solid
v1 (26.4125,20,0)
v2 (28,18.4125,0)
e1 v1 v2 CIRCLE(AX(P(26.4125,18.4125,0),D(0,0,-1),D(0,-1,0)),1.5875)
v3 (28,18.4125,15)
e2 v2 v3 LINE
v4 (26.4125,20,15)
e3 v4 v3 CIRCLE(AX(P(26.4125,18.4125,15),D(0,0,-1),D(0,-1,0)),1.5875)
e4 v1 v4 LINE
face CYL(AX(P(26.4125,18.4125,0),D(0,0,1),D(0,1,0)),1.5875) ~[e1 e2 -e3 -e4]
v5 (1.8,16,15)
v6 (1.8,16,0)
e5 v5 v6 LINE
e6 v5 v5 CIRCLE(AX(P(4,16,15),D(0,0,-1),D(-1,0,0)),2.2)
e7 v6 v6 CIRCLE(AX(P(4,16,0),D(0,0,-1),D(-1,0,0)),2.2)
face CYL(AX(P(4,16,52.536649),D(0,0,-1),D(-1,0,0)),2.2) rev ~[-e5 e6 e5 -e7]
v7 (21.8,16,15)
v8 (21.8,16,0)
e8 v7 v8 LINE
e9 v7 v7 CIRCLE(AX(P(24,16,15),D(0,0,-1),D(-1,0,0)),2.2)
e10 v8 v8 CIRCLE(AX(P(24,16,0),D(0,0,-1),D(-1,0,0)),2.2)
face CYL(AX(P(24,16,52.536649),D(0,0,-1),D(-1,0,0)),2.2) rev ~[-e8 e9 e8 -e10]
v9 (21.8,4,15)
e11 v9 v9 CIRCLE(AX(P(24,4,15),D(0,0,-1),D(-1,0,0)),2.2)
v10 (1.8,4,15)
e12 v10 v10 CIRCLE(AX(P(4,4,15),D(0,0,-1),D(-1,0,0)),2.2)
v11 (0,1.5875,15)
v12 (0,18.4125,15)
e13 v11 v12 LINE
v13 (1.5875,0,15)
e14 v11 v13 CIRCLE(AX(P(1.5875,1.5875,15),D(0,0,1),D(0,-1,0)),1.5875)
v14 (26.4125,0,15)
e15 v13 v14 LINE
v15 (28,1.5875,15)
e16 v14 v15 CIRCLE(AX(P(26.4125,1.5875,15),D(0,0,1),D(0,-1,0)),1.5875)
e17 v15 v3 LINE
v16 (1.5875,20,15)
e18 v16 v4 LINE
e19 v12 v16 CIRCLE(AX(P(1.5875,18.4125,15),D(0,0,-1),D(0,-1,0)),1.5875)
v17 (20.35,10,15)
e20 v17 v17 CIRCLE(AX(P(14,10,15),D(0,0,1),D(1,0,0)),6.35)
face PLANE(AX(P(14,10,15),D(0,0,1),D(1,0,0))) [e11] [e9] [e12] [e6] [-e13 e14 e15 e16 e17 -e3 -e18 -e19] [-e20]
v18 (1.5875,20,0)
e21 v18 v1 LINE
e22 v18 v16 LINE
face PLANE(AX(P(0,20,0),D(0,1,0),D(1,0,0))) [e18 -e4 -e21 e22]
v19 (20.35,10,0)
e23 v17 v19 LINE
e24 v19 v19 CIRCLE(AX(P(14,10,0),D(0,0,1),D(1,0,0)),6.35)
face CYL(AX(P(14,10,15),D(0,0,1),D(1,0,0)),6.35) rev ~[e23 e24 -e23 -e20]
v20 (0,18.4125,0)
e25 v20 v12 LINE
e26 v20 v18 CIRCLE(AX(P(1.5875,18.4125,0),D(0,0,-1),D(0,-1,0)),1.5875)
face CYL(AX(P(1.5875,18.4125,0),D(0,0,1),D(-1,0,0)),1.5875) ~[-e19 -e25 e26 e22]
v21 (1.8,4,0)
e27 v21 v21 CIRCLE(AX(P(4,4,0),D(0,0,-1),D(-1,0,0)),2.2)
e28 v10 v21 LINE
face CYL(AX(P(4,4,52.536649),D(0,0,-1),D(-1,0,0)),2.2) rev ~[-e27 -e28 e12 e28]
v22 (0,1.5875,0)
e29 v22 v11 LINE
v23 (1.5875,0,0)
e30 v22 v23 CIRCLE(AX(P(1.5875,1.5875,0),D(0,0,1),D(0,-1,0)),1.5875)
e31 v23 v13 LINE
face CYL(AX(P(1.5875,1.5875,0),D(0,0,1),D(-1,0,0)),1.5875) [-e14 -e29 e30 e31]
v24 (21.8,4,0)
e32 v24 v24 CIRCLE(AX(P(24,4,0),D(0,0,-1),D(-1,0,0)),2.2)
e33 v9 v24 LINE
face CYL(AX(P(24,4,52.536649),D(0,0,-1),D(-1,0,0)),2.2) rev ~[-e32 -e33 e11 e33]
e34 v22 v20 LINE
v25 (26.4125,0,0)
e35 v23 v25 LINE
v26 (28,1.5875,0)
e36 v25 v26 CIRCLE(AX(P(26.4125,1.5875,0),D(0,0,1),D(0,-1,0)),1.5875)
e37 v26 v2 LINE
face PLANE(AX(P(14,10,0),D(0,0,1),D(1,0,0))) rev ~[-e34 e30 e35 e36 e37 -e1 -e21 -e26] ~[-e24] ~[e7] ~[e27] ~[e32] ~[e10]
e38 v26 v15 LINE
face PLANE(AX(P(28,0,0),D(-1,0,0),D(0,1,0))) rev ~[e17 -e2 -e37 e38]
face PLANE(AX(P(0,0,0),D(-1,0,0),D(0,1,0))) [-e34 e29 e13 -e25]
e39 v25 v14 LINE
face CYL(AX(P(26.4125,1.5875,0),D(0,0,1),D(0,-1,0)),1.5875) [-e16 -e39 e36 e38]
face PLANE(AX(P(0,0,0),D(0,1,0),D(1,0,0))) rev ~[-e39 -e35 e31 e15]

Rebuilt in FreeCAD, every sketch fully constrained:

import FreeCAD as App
import Part
import Sketcher

V = App.Vector


def edges_at(feature, points):
    """Names of the edges that pass closest to the given points."""
    edges = feature.Shape.Edges
    near = lambda p: min(range(len(edges)), key=lambda i: edges[i].distToShape(Part.Vertex(*p))[0])
    return sorted({f"Edge{near(p) + 1}" for p in points})

doc = App.newDocument("Part")
body = doc.addObject("PartDesign::Body", "Body")

# Sketch on XY plane
sketch1 = doc.addObject("Sketcher::SketchObject", "Sketch")
body.addObject(sketch1)
sketch1.AttachmentSupport = (doc.XY_Plane, [""])
sketch1.MapMode = "FlatFace"
sketch1.addGeometry([
    Part.LineSegment(V(0, 20, 0), V(0, 0, 0)),
    Part.LineSegment(V(0, 0, 0), V(28, 0, 0)),
    Part.LineSegment(V(28, 0, 0), V(28, 20, 0)),
    Part.LineSegment(V(28, 20, 0), V(0, 20, 0)),
], False)
sketch1.addConstraint([
    Sketcher.Constraint("Coincident", 0, 2, 1, 1),
    Sketcher.Constraint("Coincident", 1, 2, 2, 1),
    Sketcher.Constraint("Coincident", 2, 2, 3, 1),
    Sketcher.Constraint("Coincident", 3, 2, 0, 1),
    Sketcher.Constraint("Vertical", 0),
    Sketcher.Constraint("Horizontal", 1),
    Sketcher.Constraint("Vertical", 2),
    Sketcher.Constraint("Horizontal", 3),
    Sketcher.Constraint("Coincident", 0, 2, -1, 1),
    Sketcher.Constraint("DistanceX", 1, 1, 1, 2, 28.0),
    Sketcher.Constraint("DistanceY", 0, 2, 0, 1, 20.0),
])
pad1 = doc.addObject("PartDesign::Pad", "Pad")
body.addObject(pad1)
pad1.Profile = sketch1
pad1.Length = 15

# Sketch on XY plane
sketch2 = doc.addObject("Sketcher::SketchObject", "Sketch001")
body.addObject(sketch2)
sketch2.AttachmentSupport = (doc.XY_Plane, [""])
sketch2.MapMode = "FlatFace"
sketch2.AttachmentOffset = App.Placement(V(0, 0, 15), App.Rotation())
sketch2.addGeometry([
    Part.Circle(V(4, 16, 0), V(0, 0, 1), 2.2),
    Part.Circle(V(4, 4, 0), V(0, 0, 1), 2.2),
    Part.Circle(V(24, 4, 0), V(0, 0, 1), 2.2),
    Part.Circle(V(24, 16, 0), V(0, 0, 1), 2.2),
], False)
sketch2.addConstraint([
    Sketcher.Constraint("Equal", 0, 1),
    Sketcher.Constraint("Equal", 1, 2),
    Sketcher.Constraint("Equal", 2, 3),
    Sketcher.Constraint("Horizontal", 1, 3, 2, 3),
    Sketcher.Constraint("Horizontal", 0, 3, 3, 3),
    Sketcher.Constraint("Vertical", 0, 3, 1, 3),
    Sketcher.Constraint("Vertical", 2, 3, 3, 3),
    Sketcher.Constraint("Diameter", 0, 4.4),
    Sketcher.Constraint("DistanceX", -1, 1, 0, 3, 4.0),
    Sketcher.Constraint("DistanceY", -1, 1, 0, 3, 16.0),
    Sketcher.Constraint("DistanceY", -1, 1, 1, 3, 4.0),
    Sketcher.Constraint("DistanceX", -1, 1, 2, 3, 24.0),
])
doc.recompute()
hole = doc.addObject("PartDesign::Hole", "Hole")
body.addObject(hole)
hole.Profile = sketch2
hole.ThreadType = "None"
hole.Diameter = 4.4
hole.DepthType = "ThroughAll"

# Sketch on XY plane
sketch3 = doc.addObject("Sketcher::SketchObject", "Sketch002")
body.addObject(sketch3)
sketch3.AttachmentSupport = (doc.XY_Plane, [""])
sketch3.MapMode = "FlatFace"
sketch3.AttachmentOffset = App.Placement(V(0, 0, 15), App.Rotation())
sketch3.addGeometry(Part.Circle(V(14, 10, 0), V(0, 0, 1), 6), False)
sketch3.addConstraint([
    Sketcher.Constraint("Diameter", 0, 12.7),
    Sketcher.Constraint("DistanceX", -1, 1, 0, 3, 14.0),
    Sketcher.Constraint("DistanceY", -1, 1, 0, 3, 10.0),
])
pocket1 = doc.addObject("PartDesign::Pocket", "Pocket")
body.addObject(pocket1)
pocket1.Profile = sketch3
pocket1.Type = "ThroughAll"
doc.recompute()

fillet = doc.addObject("PartDesign::Fillet", "Fillet")
body.addObject(fillet)
fillet.Base = (pocket1, edges_at(pocket1, [
    (0, 0, 7.5),
    (28, 0, 7.5),
    (28, 20, 7.5),
    (0, 20, 7.5),
]))
fillet.Radius = 1.5875

doc.recompute()
